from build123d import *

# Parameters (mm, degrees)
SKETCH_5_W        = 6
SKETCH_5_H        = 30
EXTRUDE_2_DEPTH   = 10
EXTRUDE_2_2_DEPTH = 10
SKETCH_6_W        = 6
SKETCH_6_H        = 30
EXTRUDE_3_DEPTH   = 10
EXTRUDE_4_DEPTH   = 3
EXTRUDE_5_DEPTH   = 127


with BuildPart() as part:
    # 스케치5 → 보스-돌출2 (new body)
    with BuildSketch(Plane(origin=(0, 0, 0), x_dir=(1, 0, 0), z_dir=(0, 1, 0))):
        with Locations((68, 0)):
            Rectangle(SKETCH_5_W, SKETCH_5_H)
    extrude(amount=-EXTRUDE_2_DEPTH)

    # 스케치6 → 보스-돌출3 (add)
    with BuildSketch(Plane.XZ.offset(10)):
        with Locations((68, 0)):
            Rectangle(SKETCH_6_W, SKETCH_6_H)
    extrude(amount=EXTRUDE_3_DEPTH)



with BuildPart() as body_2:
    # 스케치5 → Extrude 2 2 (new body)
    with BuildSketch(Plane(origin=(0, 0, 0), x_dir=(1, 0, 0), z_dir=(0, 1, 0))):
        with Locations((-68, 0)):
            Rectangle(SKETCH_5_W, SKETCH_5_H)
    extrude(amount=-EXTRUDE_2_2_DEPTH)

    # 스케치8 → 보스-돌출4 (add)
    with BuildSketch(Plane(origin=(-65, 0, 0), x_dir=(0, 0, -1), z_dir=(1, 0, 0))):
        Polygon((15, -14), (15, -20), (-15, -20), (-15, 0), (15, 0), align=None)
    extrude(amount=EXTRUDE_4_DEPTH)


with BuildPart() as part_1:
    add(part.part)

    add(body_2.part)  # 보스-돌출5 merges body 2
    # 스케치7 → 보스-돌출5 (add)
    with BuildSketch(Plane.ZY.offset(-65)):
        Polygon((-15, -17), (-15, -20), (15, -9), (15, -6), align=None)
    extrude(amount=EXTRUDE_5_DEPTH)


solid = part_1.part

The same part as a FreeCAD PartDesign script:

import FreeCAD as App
import Part
import Sketcher


def add_polygon(sketch, points):
    """Adds a closed chain of lines whose ends are joined by coincident constraints."""
    first, n = sketch.GeometryCount, len(points)
    for a, b in zip(points, points[1:] + points[:1]):
        sketch.addGeometry(Part.LineSegment(App.Vector(*a, 0), App.Vector(*b, 0)), False)
    for i in range(n):
        sketch.addConstraint(Sketcher.Constraint("Coincident", first + i, 2, first + (i + 1) % n, 1))

doc = App.newDocument("Part")
body = doc.addObject("PartDesign::Body", "Body")

# Sketch on XZ plane
sketch1 = doc.addObject("Sketcher::SketchObject", "Sketch")
body.addObject(sketch1)
sketch1.AttachmentSupport = (doc.XZ_Plane, [""])
sketch1.MapMode = "FlatFace"
add_polygon(sketch1, [(65, -15), (65, 15), (71, 15), (71, -15)])  # lines 0-3
sketch1.addConstraint([
    Sketcher.Constraint("Vertical", 0),
    Sketcher.Constraint("Horizontal", 1),
    Sketcher.Constraint("Vertical", 2),
    Sketcher.Constraint("Horizontal", 3),
    Sketcher.Constraint("DistanceX", 1, 1, 1, 2, 6.0),
    Sketcher.Constraint("DistanceY", 0, 1, 0, 2, 30.0),
    Sketcher.Constraint("DistanceX", -1, 1, 0, 2, 65.0),
    Sketcher.Constraint("DistanceY", -1, 1, 0, 2, 15.0),
])
pad1 = doc.addObject("PartDesign::Pad", "Pad")
body.addObject(pad1)
pad1.Profile = sketch1
pad1.Length = 10

# Sketch on XZ plane
sketch2 = doc.addObject("Sketcher::SketchObject", "Sketch001")
body.addObject(sketch2)
sketch2.AttachmentSupport = (doc.XZ_Plane, [""])
sketch2.MapMode = "FlatFace"
sketch2.AttachmentOffset = App.Placement(App.Vector(0, 0, 10), App.Rotation())
add_polygon(sketch2, [(65, 15), (65, -15), (71, -15), (71, 15)])  # lines 0-3
sketch2.addConstraint([
    Sketcher.Constraint("Vertical", 0),
    Sketcher.Constraint("Horizontal", 1),
    Sketcher.Constraint("Vertical", 2),
    Sketcher.Constraint("Horizontal", 3),
    Sketcher.Constraint("DistanceX", 1, 1, 1, 2, 6.0),
    Sketcher.Constraint("DistanceY", 0, 2, 0, 1, 30.0),
    Sketcher.Constraint("DistanceX", -1, 1, 0, 2, 65.0),
    Sketcher.Constraint("DistanceY", 0, 2, -1, 1, 15.0),
])
pad2 = doc.addObject("PartDesign::Pad", "Pad001")
body.addObject(pad2)
pad2.Profile = sketch2
pad2.Length = 10
body2 = doc.addObject("PartDesign::Body", "Body001")

# Sketch on XZ plane
sketch3 = doc.addObject("Sketcher::SketchObject", "Sketch002")
body2.addObject(sketch3)
sketch3.AttachmentSupport = (doc.getObject("XZ_Plane001"), [""])
sketch3.MapMode = "FlatFace"
add_polygon(sketch3, [(-71, -15), (-71, 15), (-65, 15), (-65, -15)])  # lines 0-3
sketch3.addConstraint([
    Sketcher.Constraint("Vertical", 0),
    Sketcher.Constraint("Horizontal", 1),
    Sketcher.Constraint("Vertical", 2),
    Sketcher.Constraint("Horizontal", 3),
    Sketcher.Constraint("DistanceX", 1, 1, 1, 2, 6.0),
    Sketcher.Constraint("DistanceY", 0, 1, 0, 2, 30.0),
    Sketcher.Constraint("DistanceX", 0, 2, -1, 1, 71.0),
    Sketcher.Constraint("DistanceY", -1, 1, 0, 2, 15.0),
])
pad3 = doc.addObject("PartDesign::Pad", "Pad002")
body2.addObject(pad3)
pad3.Profile = sketch3
pad3.Length = 10

# Sketch on YZ plane
sketch4 = doc.addObject("Sketcher::SketchObject", "Sketch003")
body2.addObject(sketch4)
sketch4.AttachmentSupport = (doc.getObject("YZ_Plane001"), [""])
sketch4.MapMode = "FlatFace"
sketch4.AttachmentOffset = App.Placement(App.Vector(0, 0, -65), App.Rotation())
add_polygon(sketch4, [(-20, -15), (0, -15), (0, 15), (-20, 15)])  # lines 0-3
sketch4.addConstraint([
    Sketcher.Constraint("Horizontal", 0),
    Sketcher.Constraint("Vertical", 1),
    Sketcher.Constraint("Horizontal", 2),
    Sketcher.Constraint("Vertical", 3),
    Sketcher.Constraint("Symmetric", 0, 2, 1, 2, -1, 1),
    Sketcher.Constraint("DistanceX", 0, 1, 0, 2, 20.0),
    Sketcher.Constraint("DistanceY", 1, 1, 1, 2, 30.0),
])
pad4 = doc.addObject("PartDesign::Pad", "Pad003")
body2.addObject(pad4)
pad4.Profile = sketch4
pad4.Length = 3
body.AllowCompound = True
doc.recompute()

boolean = doc.addObject("PartDesign::Boolean", "Boolean")
body.addObject(boolean)
boolean.Type = "Fuse"
boolean.addObjects([body2])

# Sketch on YZ plane
sketch5 = doc.addObject("Sketcher::SketchObject", "Sketch004")
body.addObject(sketch5)
sketch5.AttachmentSupport = (doc.YZ_Plane, [""])
sketch5.MapMode = "FlatFace"
sketch5.AttachmentOffset = App.Placement(App.Vector(0, 0, 65), App.Rotation())
add_polygon(sketch5, [(-17, -15), (-20, -15), (-9, 15), (-6, 15)])  # lines 0-3
sketch5.addConstraint([
    Sketcher.Constraint("Horizontal", 0),
    Sketcher.Constraint("Horizontal", 2),
    Sketcher.Constraint("Parallel", 1, 3),
    Sketcher.Constraint("DistanceX", 0, 2, 0, 1, 3.0),
    Sketcher.Constraint("DistanceX", 0, 2, -1, 1, 20.0),
    Sketcher.Constraint("DistanceY", 0, 2, -1, 1, 15.0),
    Sketcher.Constraint("DistanceX", 1, 2, -1, 1, 9.0),
    Sketcher.Constraint("DistanceY", -1, 1, 1, 2, 15.0),
])
pad5 = doc.addObject("PartDesign::Pad", "Pad004")
body.addObject(pad5)
pad5.Profile = sketch5
pad5.Length = 127
pad5.Reversed = True

doc.recompute()
